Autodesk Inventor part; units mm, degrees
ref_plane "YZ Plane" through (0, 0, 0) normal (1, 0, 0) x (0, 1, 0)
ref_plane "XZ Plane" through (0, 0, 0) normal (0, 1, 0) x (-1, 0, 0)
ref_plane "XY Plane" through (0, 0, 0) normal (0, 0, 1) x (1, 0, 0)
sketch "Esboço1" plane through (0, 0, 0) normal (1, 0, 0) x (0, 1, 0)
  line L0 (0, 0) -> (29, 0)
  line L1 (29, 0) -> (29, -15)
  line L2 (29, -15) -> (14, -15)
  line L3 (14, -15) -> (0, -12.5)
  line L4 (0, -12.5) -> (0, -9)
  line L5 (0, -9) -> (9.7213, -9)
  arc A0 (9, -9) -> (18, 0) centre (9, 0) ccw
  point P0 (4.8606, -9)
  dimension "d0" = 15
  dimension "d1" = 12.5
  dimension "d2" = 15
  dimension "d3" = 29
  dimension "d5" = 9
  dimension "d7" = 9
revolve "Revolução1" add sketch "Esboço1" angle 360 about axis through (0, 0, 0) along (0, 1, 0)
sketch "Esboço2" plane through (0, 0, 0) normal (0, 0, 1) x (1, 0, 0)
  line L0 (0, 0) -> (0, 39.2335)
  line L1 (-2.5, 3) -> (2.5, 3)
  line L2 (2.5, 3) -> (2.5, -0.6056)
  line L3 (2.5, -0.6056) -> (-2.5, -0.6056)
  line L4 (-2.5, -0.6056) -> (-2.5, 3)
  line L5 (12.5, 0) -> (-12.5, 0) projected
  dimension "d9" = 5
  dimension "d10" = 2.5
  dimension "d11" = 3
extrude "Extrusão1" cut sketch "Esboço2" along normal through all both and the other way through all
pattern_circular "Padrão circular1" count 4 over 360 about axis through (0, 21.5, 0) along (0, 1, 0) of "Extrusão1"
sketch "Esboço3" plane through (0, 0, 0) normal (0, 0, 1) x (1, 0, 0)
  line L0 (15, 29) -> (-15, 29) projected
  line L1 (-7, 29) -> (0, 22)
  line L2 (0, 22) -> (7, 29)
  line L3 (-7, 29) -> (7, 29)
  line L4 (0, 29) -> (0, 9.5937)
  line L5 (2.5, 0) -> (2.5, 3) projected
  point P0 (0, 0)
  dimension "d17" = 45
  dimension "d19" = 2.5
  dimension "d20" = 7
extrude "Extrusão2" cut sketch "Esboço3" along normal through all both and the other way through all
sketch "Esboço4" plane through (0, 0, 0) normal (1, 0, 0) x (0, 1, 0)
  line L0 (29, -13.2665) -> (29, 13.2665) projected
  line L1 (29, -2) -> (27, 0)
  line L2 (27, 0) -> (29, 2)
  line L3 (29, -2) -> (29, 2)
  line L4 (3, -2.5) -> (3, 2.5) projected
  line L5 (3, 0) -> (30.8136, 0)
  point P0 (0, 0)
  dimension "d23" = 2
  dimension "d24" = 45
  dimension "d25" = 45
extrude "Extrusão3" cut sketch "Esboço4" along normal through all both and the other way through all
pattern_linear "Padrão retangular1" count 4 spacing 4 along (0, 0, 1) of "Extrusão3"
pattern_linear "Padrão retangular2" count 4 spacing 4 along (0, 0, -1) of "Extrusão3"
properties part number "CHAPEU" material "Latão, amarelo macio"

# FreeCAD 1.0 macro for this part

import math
import FreeCAD as App
import Part
import Sketcher
from FreeCAD import Vector

doc = App.newDocument("Part")
body = doc.addObject("PartDesign::Body", "Body")

sketch1 = body.newObject("Sketcher::SketchObject", "Sketch")
sketch1.AttachmentSupport = (doc.getObject("YZ_Plane"), [""])
sketch1.MapMode = "FlatFace"
sketch1.addGeometry([
    Part.LineSegment(Vector(29, 0, 0), Vector(18, 0, 0)),
    Part.ArcOfCircle(Part.Circle(Vector(9, 0, 0), Vector(0, 0, 1), 9), math.radians(-90), math.radians(0)),
    Part.LineSegment(Vector(9, -9, 0), Vector(0, -9, 0)),
    Part.LineSegment(Vector(0, -9, 0), Vector(0, -12.5, 0)),
    Part.LineSegment(Vector(0, -12.5, 0), Vector(14, -15, 0)),
    Part.LineSegment(Vector(14, -15, 0), Vector(29, -15, 0)),
    Part.LineSegment(Vector(29, -15, 0), Vector(29, 0, 0)),
], False)
sketch1.addConstraint([
    Sketcher.Constraint("Coincident", 0, 2, 1, 2),
    Sketcher.Constraint("Tangent", 1, 1, 2, 1),
    Sketcher.Constraint("Coincident", 2, 2, 3, 1),
    Sketcher.Constraint("Coincident", 3, 2, 4, 1),
    Sketcher.Constraint("Coincident", 4, 2, 5, 1),
    Sketcher.Constraint("Coincident", 5, 2, 6, 1),
    Sketcher.Constraint("Coincident", 6, 2, 0, 1),
    Sketcher.Constraint("Horizontal", 0),
    Sketcher.Constraint("Horizontal", 2),
    Sketcher.Constraint("Vertical", 3),
    Sketcher.Constraint("Horizontal", 5),
    Sketcher.Constraint("Vertical", 6),
    Sketcher.Constraint("PointOnObject", 1, 3, -1),
    Sketcher.Constraint("PointOnObject", 0, 2, -1),
    Sketcher.Constraint("PointOnObject", 2, 2, -2),
    Sketcher.Constraint("Equal", 5, 6),
    Sketcher.Constraint("Radius", 1, 9.0),
    Sketcher.Constraint("DistanceX", 2, 2, 2, 1, 9.0),
    Sketcher.Constraint("DistanceX", 5, 1, 5, 2, 15.0),
    Sketcher.Constraint("DistanceX", -1, 1, 5, 2, 29.0),
    Sketcher.Constraint("DistanceY", 3, 2, -1, 1, 12.5),
])
revolution = body.newObject("PartDesign::Revolution", "Revolution")
revolution.Profile = sketch1
revolution.ReferenceAxis = (sketch1, ["H_Axis"])
revolution.Angle = 360

sketch2 = body.newObject("Sketcher::SketchObject", "Sketch001")
sketch2.AttachmentSupport = (doc.getObject("XY_Plane"), [""])
sketch2.MapMode = "FlatFace"
sketch2.addGeometry([
    Part.LineSegment(Vector(-2.5, 3, 0), Vector(-2.5, -0.6056, 0)),
    Part.LineSegment(Vector(-2.5, -0.6056, 0), Vector(2.5, -0.6056, 0)),
    Part.LineSegment(Vector(2.5, -0.6056, 0), Vector(2.5, 3, 0)),
    Part.LineSegment(Vector(2.5, 3, 0), Vector(-2.5, 3, 0)),
], False)
sketch2.addConstraint([
    Sketcher.Constraint("Coincident", 0, 2, 1, 1),
    Sketcher.Constraint("Coincident", 1, 2, 2, 1),
    Sketcher.Constraint("Coincident", 2, 2, 3, 1),
    Sketcher.Constraint("Coincident", 3, 2, 0, 1),
    Sketcher.Constraint("Vertical", 0),
    Sketcher.Constraint("Horizontal", 1),
    Sketcher.Constraint("Vertical", 2),
    Sketcher.Constraint("Horizontal", 3),
    Sketcher.Constraint("DistanceX", 1, 1, 1, 2, 5.0),
    Sketcher.Constraint("DistanceY", -1, 1, 2, 2, 3.0),
    Sketcher.Constraint("DistanceX", 0, 2, -1, 1, 2.5),
    Sketcher.Constraint("DistanceY", 0, 2, 0, 1, 3.6056),
])
pocket1 = body.newObject("PartDesign::Pocket", "Pocket")
pocket1.Profile = sketch2
pocket1.Type = "ThroughAll"
pocket1.Midplane = True
doc.recompute()

polarpattern = body.newObject("PartDesign::PolarPattern", "PolarPattern")
polarpattern.Originals = [pocket1]
polarpattern.Axis = (doc.getObject("Y_Axis"), [""])
polarpattern.Angle = 360
polarpattern.Occurrences = 4
body.Tip = polarpattern

sketch3 = body.newObject("Sketcher::SketchObject", "Sketch002")
sketch3.AttachmentSupport = (doc.getObject("XY_Plane"), [""])
sketch3.MapMode = "FlatFace"
sketch3.addGeometry([
    Part.LineSegment(Vector(0, 22, 0), Vector(7, 29, 0)),
    Part.LineSegment(Vector(7, 29, 0), Vector(-7, 29, 0)),
    Part.LineSegment(Vector(-7, 29, 0), Vector(0, 22, 0)),
], False)
sketch3.addConstraint([
    Sketcher.Constraint("Coincident", 0, 2, 1, 1),
    Sketcher.Constraint("Coincident", 1, 2, 2, 1),
    Sketcher.Constraint("Coincident", 2, 2, 0, 1),
    Sketcher.Constraint("Horizontal", 1),
    Sketcher.Constraint("PointOnObject", 2, 2, -2),
    Sketcher.Constraint("Perpendicular", 0, 2),
    Sketcher.Constraint("Equal", 0, 2),
    Sketcher.Constraint("DistanceX", -1, 1, 0, 2, 7.0),
    Sketcher.Constraint("DistanceY", -1, 1, 0, 2, 29.0),
])
pocket2 = body.newObject("PartDesign::Pocket", "Pocket001")
pocket2.Profile = sketch3
pocket2.Type = "ThroughAll"
pocket2.Midplane = True

sketch4 = body.newObject("Sketcher::SketchObject", "Sketch003")
sketch4.AttachmentSupport = (doc.getObject("YZ_Plane"), [""])
sketch4.MapMode = "FlatFace"
sketch4.addGeometry([
    Part.LineSegment(Vector(27, 0, 0), Vector(29, -2, 0)),
    Part.LineSegment(Vector(29, -2, 0), Vector(29, 2, 0)),
    Part.LineSegment(Vector(29, 2, 0), Vector(27, 0, 0)),
], False)
sketch4.addConstraint([
    Sketcher.Constraint("Coincident", 0, 2, 1, 1),
    Sketcher.Constraint("Coincident", 1, 2, 2, 1),
    Sketcher.Constraint("Coincident", 2, 2, 0, 1),
    Sketcher.Constraint("Vertical", 1),
    Sketcher.Constraint("PointOnObject", 2, 2, -1),
    Sketcher.Constraint("Perpendicular", 0, 2),
    Sketcher.Constraint("Equal", 0, 2),
    Sketcher.Constraint("DistanceY", 0, 2, -1, 1, 2.0),
    Sketcher.Constraint("DistanceX", -1, 1, 0, 2, 29.0),
])
pocket3 = body.newObject("PartDesign::Pocket", "Pocket002")
pocket3.Profile = sketch4
pocket3.Type = "ThroughAll"
pocket3.Midplane = True
doc.recompute()

linearpattern = body.newObject("PartDesign::LinearPattern", "LinearPattern")
linearpattern.Originals = [pocket3]
linearpattern.Direction = (doc.getObject("Z_Axis"), [""])
linearpattern.Mode = "offset"
linearpattern.Offset = 4
linearpattern.Occurrences = 4
body.Tip = linearpattern
doc.recompute()

linearpattern2 = body.newObject("PartDesign::LinearPattern", "LinearPattern001")
linearpattern2.Originals = [pocket3]
linearpattern2.Direction = (doc.getObject("Z_Axis"), [""])
linearpattern2.Mode = "offset"
linearpattern2.Offset = 4
linearpattern2.Occurrences = 4
linearpattern2.Reversed = True
body.Tip = linearpattern2

doc.recompute()
